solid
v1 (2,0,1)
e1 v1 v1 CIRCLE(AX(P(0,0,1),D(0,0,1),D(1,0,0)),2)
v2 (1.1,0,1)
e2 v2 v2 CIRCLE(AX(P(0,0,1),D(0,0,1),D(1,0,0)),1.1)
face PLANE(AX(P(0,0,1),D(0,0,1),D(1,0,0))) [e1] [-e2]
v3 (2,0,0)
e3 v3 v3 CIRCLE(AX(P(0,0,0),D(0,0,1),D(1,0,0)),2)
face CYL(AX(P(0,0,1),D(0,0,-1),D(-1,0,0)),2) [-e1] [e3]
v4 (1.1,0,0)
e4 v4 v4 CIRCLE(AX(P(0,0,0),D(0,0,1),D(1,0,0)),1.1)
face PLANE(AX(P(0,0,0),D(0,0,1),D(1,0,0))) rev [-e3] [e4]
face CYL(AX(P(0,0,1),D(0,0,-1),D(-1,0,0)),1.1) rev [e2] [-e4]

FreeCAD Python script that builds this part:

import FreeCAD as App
import Part
import Sketcher

doc = App.newDocument("Part")
body = doc.addObject("PartDesign::Body", "Body")

# Sketch on XY plane
sketch1 = body.newObject("Sketcher::SketchObject", "Sketch")
sketch1.AttachmentSupport = (doc.getObject("XY_Plane"), [""])
sketch1.MapMode = "FlatFace"
sketch1.addGeometry([
    Part.Circle(App.Vector(0, 0, 0), App.Vector(0, 0, 1), 2),
    Part.Circle(App.Vector(0, 0, 0), App.Vector(0, 0, 1), 1.1),
], False)
sketch1.addConstraint([
    Sketcher.Constraint("Coincident", 0, 3, -1, 1),
    Sketcher.Constraint("Coincident", 1, 3, -1, 1),
    Sketcher.Constraint("Diameter", 0, 4.0),
    Sketcher.Constraint("Diameter", 1, 2.2),
])
pad1 = body.newObject("PartDesign::Pad", "Pad")
pad1.Profile = sketch1
pad1.Length = 1

doc.recompute()
